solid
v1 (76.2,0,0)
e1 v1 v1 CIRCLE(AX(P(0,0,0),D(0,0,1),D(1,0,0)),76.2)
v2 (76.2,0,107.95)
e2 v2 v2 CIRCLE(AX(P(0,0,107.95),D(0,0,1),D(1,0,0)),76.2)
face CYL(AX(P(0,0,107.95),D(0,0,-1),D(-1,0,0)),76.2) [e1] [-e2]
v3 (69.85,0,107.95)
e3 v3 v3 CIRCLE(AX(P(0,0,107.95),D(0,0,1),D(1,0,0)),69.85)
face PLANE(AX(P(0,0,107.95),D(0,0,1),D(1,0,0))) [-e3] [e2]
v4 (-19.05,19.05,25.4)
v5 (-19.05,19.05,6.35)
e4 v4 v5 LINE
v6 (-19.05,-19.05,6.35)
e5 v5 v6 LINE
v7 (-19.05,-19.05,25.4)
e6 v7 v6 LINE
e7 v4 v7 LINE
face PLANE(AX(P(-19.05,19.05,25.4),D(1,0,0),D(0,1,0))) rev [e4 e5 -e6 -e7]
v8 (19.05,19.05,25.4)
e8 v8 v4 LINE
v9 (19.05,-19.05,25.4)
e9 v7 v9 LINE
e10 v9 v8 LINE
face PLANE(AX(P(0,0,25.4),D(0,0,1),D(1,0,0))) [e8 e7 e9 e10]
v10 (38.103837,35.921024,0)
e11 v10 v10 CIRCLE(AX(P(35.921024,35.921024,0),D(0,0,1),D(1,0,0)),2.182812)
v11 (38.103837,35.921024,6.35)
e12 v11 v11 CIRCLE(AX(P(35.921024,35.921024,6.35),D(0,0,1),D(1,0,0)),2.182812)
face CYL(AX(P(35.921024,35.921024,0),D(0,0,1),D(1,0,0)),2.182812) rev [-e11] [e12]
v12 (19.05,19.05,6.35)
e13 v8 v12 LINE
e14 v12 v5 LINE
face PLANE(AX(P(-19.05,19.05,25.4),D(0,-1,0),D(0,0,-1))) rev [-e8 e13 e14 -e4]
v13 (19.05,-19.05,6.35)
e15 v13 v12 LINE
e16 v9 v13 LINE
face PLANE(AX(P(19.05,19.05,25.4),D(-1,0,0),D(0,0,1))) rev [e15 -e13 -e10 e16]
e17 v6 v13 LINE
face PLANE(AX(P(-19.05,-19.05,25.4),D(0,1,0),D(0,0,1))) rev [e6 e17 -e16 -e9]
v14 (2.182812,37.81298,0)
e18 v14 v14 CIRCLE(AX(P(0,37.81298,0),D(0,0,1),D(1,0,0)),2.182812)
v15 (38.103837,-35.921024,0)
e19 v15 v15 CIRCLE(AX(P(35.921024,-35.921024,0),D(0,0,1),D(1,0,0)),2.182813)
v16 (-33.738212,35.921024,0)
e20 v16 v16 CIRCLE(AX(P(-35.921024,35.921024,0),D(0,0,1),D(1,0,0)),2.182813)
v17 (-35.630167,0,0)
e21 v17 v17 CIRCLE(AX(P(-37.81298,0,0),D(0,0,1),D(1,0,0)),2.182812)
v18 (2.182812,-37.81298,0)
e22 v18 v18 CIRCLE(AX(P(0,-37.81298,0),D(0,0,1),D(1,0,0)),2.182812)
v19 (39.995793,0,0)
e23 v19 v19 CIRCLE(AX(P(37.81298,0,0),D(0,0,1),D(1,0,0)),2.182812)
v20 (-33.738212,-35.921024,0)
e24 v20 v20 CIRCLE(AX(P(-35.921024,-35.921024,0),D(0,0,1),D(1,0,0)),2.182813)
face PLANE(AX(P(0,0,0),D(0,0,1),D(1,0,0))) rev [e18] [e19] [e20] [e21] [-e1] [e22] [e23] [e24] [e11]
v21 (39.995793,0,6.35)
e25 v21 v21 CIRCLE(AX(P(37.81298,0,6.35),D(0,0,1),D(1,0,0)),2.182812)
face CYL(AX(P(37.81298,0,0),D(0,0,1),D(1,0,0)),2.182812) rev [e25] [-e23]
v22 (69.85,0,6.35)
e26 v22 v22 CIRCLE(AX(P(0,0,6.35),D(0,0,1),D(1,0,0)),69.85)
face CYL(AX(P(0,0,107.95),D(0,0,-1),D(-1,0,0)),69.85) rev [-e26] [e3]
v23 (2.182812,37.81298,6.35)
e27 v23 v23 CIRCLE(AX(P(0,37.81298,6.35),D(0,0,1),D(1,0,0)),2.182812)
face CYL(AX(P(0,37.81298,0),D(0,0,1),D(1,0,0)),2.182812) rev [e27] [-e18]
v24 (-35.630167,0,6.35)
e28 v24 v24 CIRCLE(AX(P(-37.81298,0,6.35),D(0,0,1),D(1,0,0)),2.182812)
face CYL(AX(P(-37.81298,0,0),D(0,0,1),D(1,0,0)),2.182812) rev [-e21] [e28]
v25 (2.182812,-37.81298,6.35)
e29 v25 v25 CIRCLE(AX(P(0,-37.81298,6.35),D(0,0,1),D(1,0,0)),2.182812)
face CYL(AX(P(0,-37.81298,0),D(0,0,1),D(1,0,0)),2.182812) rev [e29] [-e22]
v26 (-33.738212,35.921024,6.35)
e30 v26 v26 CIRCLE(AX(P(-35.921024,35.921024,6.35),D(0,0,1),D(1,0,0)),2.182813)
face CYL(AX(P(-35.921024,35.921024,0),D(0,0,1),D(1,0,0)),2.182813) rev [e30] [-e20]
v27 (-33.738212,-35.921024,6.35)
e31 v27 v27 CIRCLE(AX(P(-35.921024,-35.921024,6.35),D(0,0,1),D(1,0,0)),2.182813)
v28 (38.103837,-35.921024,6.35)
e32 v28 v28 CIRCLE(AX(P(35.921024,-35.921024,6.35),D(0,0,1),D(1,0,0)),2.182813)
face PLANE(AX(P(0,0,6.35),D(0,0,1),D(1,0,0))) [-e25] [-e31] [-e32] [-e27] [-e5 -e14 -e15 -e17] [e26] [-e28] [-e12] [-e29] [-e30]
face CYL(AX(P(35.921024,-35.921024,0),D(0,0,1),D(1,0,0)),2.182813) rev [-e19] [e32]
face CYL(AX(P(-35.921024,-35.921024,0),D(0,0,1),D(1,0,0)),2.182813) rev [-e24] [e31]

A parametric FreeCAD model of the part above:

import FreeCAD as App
import Part
import Sketcher

V = App.Vector
Q = App.Units.Quantity


def add_polygon(sketch, points):
    """Adds a closed chain of lines whose ends are joined by coincident constraints."""
    first, n = sketch.GeometryCount, len(points)
    for a, b in zip(points, points[1:] + points[:1]):
        sketch.addGeometry(Part.LineSegment(App.Vector(*a, 0), App.Vector(*b, 0)), False)
    for i in range(n):
        sketch.addConstraint(Sketcher.Constraint("Coincident", first + i, 2, first + (i + 1) % n, 1))

doc = App.newDocument("Part")
body = doc.addObject("PartDesign::Body", "Body")

# Sketch on XY plane
sketch1 = body.newObject("Sketcher::SketchObject", "Sketch")
sketch1.AttachmentSupport = (doc.getObject("XY_Plane"), [""])
sketch1.MapMode = "FlatFace"
sketch1.addGeometry([
    Part.Circle(V(0, 0, 0), V(0, 0, 1), 76),
    Part.Circle(V(0, 0, 0), V(0, 0, 1), 70),
], False)
sketch1.addConstraint([
    Sketcher.Constraint("Coincident", 0, 3, -1, 1),
    Sketcher.Constraint("Coincident", 1, 3, -1, 1),
    Sketcher.Constraint("Diameter", 0, Q("6 in")),
    Sketcher.Constraint("Diameter", 1, Q("5.5 in")),
])
pad1 = body.newObject("PartDesign::Pad", "Pad")
pad1.Profile = sketch1
pad1.Length = Q("4.25 in")

# Sketch on XY plane
sketch2 = body.newObject("Sketcher::SketchObject", "Sketch001")
sketch2.AttachmentSupport = (doc.getObject("XY_Plane"), [""])
sketch2.MapMode = "FlatFace"
sketch2.addGeometry(Part.Circle(V(0, 0, 0), V(0, 0, 1), 76), False)
sketch2.addConstraint([
    Sketcher.Constraint("Coincident", 0, 3, -1, 1),
    Sketcher.Constraint("Diameter", 0, Q("6 in")),
])
pad2 = body.newObject("PartDesign::Pad", "Pad001")
pad2.Profile = sketch2
pad2.Length = Q("0.25 in")

# Sketch on XY plane
sketch3 = body.newObject("Sketcher::SketchObject", "Sketch002")
sketch3.AttachmentSupport = (doc.getObject("XY_Plane"), [""])
sketch3.MapMode = "FlatFace"
sketch3.AttachmentOffset = App.Placement(V(0, 0, 0.25 * 25.4), App.Rotation())
sketch3.addGeometry([
    Part.Circle(V(0, 37.8, 0), V(0, 0, 1), 2.2),
    Part.Circle(V(37.8, 0, 0), V(0, 0, 1), 2.2),
    Part.Circle(V(-37.8, 0, 0), V(0, 0, 1), 2.2),
    Part.Circle(V(0, -37.8, 0), V(0, 0, 1), 2.2),
], False)
sketch3.addConstraint([
    Sketcher.Constraint("Equal", 0, 1),
    Sketcher.Constraint("Equal", 1, 2),
    Sketcher.Constraint("Equal", 2, 3),
    Sketcher.Constraint("Symmetric", 1, 3, 2, 3, -1, 1),
    Sketcher.Constraint("Symmetric", 0, 3, 3, 3, -1, 1),
    Sketcher.Constraint("PointOnObject", 0, 3, -2),
    Sketcher.Constraint("PointOnObject", 1, 3, -1),
    Sketcher.Constraint("Diameter", 0, Q("0.171875 in")),
    Sketcher.Constraint("DistanceY", -1, 1, 0, 3, Q("1.4887 in")),
    Sketcher.Constraint("DistanceX", -1, 1, 1, 3, Q("1.4887 in")),
])
pocket1 = body.newObject("PartDesign::Pocket", "Pocket")
pocket1.Profile = sketch3
pocket1.Type = "ThroughAll"

# Sketch on XY plane
sketch4 = body.newObject("Sketcher::SketchObject", "Sketch003")
sketch4.AttachmentSupport = (doc.getObject("XY_Plane"), [""])
sketch4.MapMode = "FlatFace"
sketch4.AttachmentOffset = App.Placement(V(0, 0, 0.25 * 25.4), App.Rotation())
sketch4.addGeometry([
    Part.Circle(V(-35.9, 35.9, 0), V(0, 0, 1), 2.2),
    Part.Circle(V(-35.9, -35.9, 0), V(0, 0, 1), 2.2),
    Part.Circle(V(35.9, -35.9, 0), V(0, 0, 1), 2.2),
    Part.Circle(V(35.9, 35.9, 0), V(0, 0, 1), 2.2),
], False)
sketch4.addConstraint([
    Sketcher.Constraint("Equal", 0, 1),
    Sketcher.Constraint("Equal", 1, 2),
    Sketcher.Constraint("Equal", 2, 3),
    Sketcher.Constraint("Symmetric", 0, 3, 2, 3, -1, 1),
    Sketcher.Constraint("Symmetric", 1, 3, 3, 3, -1, 1),
    Sketcher.Constraint("Symmetric", 1, 3, 2, 3, -2),
    Sketcher.Constraint("Diameter", 0, Q("0.171875 in")),
    Sketcher.Constraint("DistanceY", 1, 3, 0, 3, 71.842049),
    Sketcher.Constraint("DistanceX", 1, 3, 2, 3, 71.842049),
])
pocket2 = body.newObject("PartDesign::Pocket", "Pocket001")
pocket2.Profile = sketch4
pocket2.Type = "ThroughAll"

# Sketch on XY plane
sketch5 = body.newObject("Sketcher::SketchObject", "Sketch004")
sketch5.AttachmentSupport = (doc.getObject("XY_Plane"), [""])
sketch5.MapMode = "FlatFace"
sketch5.AttachmentOffset = App.Placement(V(0, 0, 0.25 * 25.4), App.Rotation())
add_polygon(sketch5, [(-19, 19), (-19, -19), (19, -19), (19, 19)])  # lines 0-3
sketch5.addConstraint([
    Sketcher.Constraint("Vertical", 0),
    Sketcher.Constraint("Horizontal", 1),
    Sketcher.Constraint("Vertical", 2),
    Sketcher.Constraint("Horizontal", 3),
    Sketcher.Constraint("Symmetric", 0, 2, 2, 2, -1, 1),
    Sketcher.Constraint("Equal", 3, 0),
    Sketcher.Constraint("DistanceX", 1, 1, 1, 2, Q("1.5 in")),
])
pad3 = body.newObject("PartDesign::Pad", "Pad002")
pad3.Profile = sketch5
pad3.Length = Q("0.75 in")

doc.recompute()
